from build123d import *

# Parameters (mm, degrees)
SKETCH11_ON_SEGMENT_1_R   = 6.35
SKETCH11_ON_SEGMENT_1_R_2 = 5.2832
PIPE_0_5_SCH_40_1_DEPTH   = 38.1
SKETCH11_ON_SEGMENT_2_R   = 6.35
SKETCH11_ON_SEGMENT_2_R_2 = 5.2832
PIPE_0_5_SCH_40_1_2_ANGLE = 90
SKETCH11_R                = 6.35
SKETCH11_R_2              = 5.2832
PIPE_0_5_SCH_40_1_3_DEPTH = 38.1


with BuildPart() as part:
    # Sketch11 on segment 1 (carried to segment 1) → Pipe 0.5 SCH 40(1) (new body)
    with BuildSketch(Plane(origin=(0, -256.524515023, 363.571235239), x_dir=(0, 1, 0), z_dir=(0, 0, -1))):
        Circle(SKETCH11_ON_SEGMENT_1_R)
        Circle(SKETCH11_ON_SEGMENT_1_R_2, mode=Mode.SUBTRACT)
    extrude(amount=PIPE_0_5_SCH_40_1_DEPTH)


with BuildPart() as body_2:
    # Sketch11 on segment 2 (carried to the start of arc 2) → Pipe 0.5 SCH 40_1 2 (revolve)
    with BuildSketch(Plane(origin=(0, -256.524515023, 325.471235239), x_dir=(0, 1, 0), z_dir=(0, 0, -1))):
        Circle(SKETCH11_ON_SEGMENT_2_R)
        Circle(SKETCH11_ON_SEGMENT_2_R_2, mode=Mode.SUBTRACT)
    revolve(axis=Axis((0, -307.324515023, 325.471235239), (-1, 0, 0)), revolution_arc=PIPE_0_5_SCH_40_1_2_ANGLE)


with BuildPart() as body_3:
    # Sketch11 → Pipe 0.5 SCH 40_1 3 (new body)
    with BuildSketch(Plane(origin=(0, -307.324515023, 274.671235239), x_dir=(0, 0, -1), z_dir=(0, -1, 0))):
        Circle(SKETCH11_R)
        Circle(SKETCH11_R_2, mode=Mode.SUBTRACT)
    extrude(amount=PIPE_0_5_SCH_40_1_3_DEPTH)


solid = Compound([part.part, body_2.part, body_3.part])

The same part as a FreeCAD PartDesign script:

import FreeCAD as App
import Part
import Sketcher
Q = App.Units.Quantity

doc = App.newDocument("Part")
body = doc.addObject("PartDesign::Body", "Body")

# Sketch on XY plane
sketch1 = body.newObject("Sketcher::SketchObject", "Sketch")
sketch1.AttachmentSupport = (doc.getObject("XY_Plane"), [""])
sketch1.MapMode = "FlatFace"
sketch1.AttachmentOffset = App.Placement(App.Vector(0, 0, 363.571235), App.Rotation())
sketch1.addGeometry([
    Part.Circle(App.Vector(0, -257, 0), App.Vector(0, 0, 1), 6),
    Part.Circle(App.Vector(0, -257, 0), App.Vector(0, 0, 1), 5),
], False)
sketch1.addConstraint([
    Sketcher.Constraint("Coincident", 1, 3, 0, 3),
    Sketcher.Constraint("PointOnObject", 0, 3, -2),
    Sketcher.Constraint("Diameter", 0, Q("0.5 in")),
    Sketcher.Constraint("Diameter", 1, Q("0.416 in")),
    Sketcher.Constraint("DistanceY", 0, 3, -1, 1, 256.524515),
])
pad1 = body.newObject("PartDesign::Pad", "Pad")
pad1.Profile = sketch1
pad1.Length = Q("1.5 in")
pad1.Reversed = True
body2 = doc.addObject("PartDesign::Body", "Body001")

# Sketch on XY plane
sketch2 = body2.newObject("Sketcher::SketchObject", "Sketch001")
sketch2.AttachmentSupport = (doc.getObject("XY_Plane001"), [""])
sketch2.MapMode = "FlatFace"
sketch2.AttachmentOffset = App.Placement(App.Vector(0, 0, 325.471235), App.Rotation())
sketch2.addGeometry([
    Part.Circle(App.Vector(0, -257, 0), App.Vector(0, 0, 1), 6),
    Part.Circle(App.Vector(0, -257, 0), App.Vector(0, 0, 1), 5),
], False)
sketch2.addGeometry(Part.LineSegment(App.Vector(0, -307, 0), App.Vector(-10, -307, 0)), True)  # axis
sketch2.addConstraint([
    Sketcher.Constraint("Horizontal", 2),
    Sketcher.Constraint("Coincident", 1, 3, 0, 3),
    Sketcher.Constraint("PointOnObject", 0, 3, -2),
    Sketcher.Constraint("PointOnObject", 2, 1, -2),
    Sketcher.Constraint("Diameter", 0, Q("0.5 in")),
    Sketcher.Constraint("Diameter", 1, Q("0.416 in")),
    Sketcher.Constraint("DistanceY", 2, 1, 0, 3, Q("2 in")),
    Sketcher.Constraint("DistanceX", 2, 2, 2, 1, 10.0),
    Sketcher.Constraint("DistanceY", 0, 3, -1, 1, 256.524515),
])
revolution = body2.newObject("PartDesign::Revolution", "Revolution")
revolution.Profile = sketch2
revolution.ReferenceAxis = (sketch2, ["Axis0"])
revolution.Angle = 90
body3 = doc.addObject("PartDesign::Body", "Body002")

# Sketch on XZ plane
sketch3 = body3.newObject("Sketcher::SketchObject", "Sketch002")
sketch3.AttachmentSupport = (doc.getObject("XZ_Plane002"), [""])
sketch3.MapMode = "FlatFace"
sketch3.AttachmentOffset = App.Placement(App.Vector(0, 0, 307.324515), App.Rotation())
sketch3.addGeometry([
    Part.Circle(App.Vector(0, 275, 0), App.Vector(0, 0, 1), 6),
    Part.Circle(App.Vector(0, 275, 0), App.Vector(0, 0, 1), 5),
], False)
sketch3.addConstraint([
    Sketcher.Constraint("Coincident", 1, 3, 0, 3),
    Sketcher.Constraint("PointOnObject", 0, 3, -2),
    Sketcher.Constraint("Diameter", 0, Q("0.5 in")),
    Sketcher.Constraint("Diameter", 1, Q("0.416 in")),
    Sketcher.Constraint("DistanceY", -1, 1, 0, 3, 274.671235),
])
pad2 = body3.newObject("PartDesign::Pad", "Pad001")
pad2.Profile = sketch3
pad2.Length = Q("1.5 in")

doc.recompute()
